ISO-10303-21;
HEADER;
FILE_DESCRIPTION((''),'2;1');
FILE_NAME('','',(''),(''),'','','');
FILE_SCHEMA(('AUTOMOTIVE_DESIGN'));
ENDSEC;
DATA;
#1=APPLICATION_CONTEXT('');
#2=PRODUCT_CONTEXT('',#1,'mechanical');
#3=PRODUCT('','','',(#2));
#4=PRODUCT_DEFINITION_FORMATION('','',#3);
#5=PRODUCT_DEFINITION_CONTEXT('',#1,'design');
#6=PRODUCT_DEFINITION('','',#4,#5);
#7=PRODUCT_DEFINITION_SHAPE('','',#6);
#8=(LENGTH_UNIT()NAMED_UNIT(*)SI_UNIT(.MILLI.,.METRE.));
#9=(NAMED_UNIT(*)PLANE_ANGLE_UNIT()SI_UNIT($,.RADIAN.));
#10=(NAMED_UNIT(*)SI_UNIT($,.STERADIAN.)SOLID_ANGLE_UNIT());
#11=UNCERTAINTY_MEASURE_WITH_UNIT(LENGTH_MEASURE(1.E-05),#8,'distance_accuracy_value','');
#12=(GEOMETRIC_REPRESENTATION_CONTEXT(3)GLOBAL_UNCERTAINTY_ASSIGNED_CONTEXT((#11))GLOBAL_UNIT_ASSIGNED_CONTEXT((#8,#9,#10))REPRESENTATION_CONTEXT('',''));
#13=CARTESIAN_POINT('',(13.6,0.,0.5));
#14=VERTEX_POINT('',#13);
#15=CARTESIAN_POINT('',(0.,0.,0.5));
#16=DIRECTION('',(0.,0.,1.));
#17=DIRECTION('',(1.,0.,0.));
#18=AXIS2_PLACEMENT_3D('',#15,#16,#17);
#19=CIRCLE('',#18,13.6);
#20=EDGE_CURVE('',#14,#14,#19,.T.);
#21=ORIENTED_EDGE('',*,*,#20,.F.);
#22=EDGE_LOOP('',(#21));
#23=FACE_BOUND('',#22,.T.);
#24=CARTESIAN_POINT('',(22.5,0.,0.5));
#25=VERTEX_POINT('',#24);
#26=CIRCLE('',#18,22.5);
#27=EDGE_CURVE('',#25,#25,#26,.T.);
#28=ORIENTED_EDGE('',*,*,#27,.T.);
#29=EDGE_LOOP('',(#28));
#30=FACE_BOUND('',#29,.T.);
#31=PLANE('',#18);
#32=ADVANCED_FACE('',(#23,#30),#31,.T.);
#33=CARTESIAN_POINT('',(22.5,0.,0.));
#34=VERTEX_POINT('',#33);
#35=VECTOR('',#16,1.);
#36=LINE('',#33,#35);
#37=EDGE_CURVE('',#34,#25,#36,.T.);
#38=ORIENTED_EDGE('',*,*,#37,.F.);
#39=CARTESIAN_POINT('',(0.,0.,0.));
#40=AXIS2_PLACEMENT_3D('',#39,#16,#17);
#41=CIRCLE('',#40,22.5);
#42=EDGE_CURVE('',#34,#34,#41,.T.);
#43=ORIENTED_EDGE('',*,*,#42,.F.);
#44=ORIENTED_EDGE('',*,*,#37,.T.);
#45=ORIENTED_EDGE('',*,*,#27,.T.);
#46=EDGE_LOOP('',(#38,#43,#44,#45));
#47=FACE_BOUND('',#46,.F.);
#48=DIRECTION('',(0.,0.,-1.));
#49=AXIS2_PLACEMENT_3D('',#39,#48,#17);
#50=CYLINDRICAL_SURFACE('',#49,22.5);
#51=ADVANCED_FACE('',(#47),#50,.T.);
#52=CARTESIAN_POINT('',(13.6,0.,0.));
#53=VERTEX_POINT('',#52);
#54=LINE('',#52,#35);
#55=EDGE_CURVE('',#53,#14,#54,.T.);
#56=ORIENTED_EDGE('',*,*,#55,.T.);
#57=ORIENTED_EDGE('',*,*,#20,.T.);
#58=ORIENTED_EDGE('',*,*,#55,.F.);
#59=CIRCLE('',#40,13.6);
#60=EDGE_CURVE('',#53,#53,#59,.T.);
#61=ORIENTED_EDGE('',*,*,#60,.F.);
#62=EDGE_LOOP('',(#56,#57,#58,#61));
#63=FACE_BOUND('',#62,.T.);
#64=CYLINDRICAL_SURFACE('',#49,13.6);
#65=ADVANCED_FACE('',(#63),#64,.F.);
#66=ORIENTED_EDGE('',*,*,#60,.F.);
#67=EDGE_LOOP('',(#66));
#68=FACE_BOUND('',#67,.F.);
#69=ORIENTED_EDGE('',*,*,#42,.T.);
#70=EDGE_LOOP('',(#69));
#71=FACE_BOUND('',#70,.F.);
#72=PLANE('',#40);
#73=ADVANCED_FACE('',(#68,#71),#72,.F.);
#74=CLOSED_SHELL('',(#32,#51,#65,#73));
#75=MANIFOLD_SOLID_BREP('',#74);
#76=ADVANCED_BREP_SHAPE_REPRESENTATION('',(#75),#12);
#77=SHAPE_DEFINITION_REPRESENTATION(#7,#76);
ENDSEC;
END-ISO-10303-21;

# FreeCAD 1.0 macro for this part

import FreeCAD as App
import Part
import Sketcher

V = App.Vector

doc = App.newDocument("Part")
body = doc.addObject("PartDesign::Body", "Body")

sketch1 = body.newObject("Sketcher::SketchObject", "Sketch")
sketch1.AttachmentSupport = (doc.getObject("XY_Plane"), [""])
sketch1.MapMode = "FlatFace"
sketch1.addGeometry(Part.Circle(V(0, 0, 0), V(0, 0, 1), 14), False)
sketch1.addConstraint([
    Sketcher.Constraint("Coincident", 0, 3, -1, 1),
    Sketcher.Constraint("Diameter", 0, 27.2),
])
pad1 = body.newObject("PartDesign::Pad", "Pad")
pad1.Profile = sketch1
pad1.Length = 0.5
body2 = doc.addObject("PartDesign::Body", "Body001")

sketch2 = body2.newObject("Sketcher::SketchObject", "Sketch001")
sketch2.AttachmentSupport = (doc.getObject("XY_Plane001"), [""])
sketch2.MapMode = "FlatFace"
sketch2.addGeometry(Part.Circle(V(0, 0, 0), V(0, 0, 1), 22), False)
sketch2.addConstraint([
    Sketcher.Constraint("Coincident", 0, 3, -1, 1),
    Sketcher.Constraint("Diameter", 0, 45.0),
])
pad2 = body2.newObject("PartDesign::Pad", "Pad001")
pad2.Profile = sketch2
pad2.Length = 0.5
doc.recompute()

boolean = body2.newObject("PartDesign::Boolean", "Boolean")
boolean.Type = "Cut"
boolean.addObjects([body])

doc.recompute()
